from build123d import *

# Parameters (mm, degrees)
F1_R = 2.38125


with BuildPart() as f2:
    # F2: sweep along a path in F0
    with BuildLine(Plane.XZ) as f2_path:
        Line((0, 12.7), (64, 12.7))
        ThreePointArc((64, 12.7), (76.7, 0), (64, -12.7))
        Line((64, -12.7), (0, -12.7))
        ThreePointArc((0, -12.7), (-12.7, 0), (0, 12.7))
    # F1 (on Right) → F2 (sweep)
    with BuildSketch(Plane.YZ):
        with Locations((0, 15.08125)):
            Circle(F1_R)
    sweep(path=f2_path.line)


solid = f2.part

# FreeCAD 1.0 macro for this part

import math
import FreeCAD as App
import Part
import Sketcher
Q = App.Units.Quantity

doc = App.newDocument("Part")
body = doc.addObject("PartDesign::Body", "Body")

sketch1 = body.newObject("Sketcher::SketchObject", "Sketch")
sketch1.AttachmentSupport = (doc.getObject("YZ_Plane"), [""])
sketch1.MapMode = "FlatFace"
sketch1.addGeometry(Part.Circle(App.Vector(0, 15.1, 0), App.Vector(0, 0, 1), 2.4), False)
sketch1.addConstraint(Sketcher.Constraint("PointOnObject", 0, 3, -2))
sketch1.addConstraint(Sketcher.Constraint("Diameter", 0, Q("0.1875 in")))
sketch1.addConstraint(Sketcher.Constraint("DistanceY", -1, 1, 0, 3, Q("0.59375 in")))

sketch2 = body.newObject("Sketcher::SketchObject", "Sketch001")
sketch2.AttachmentSupport = (doc.getObject("XZ_Plane"), [""])
sketch2.MapMode = "FlatFace"
sketch2.addGeometry(Part.LineSegment(App.Vector(0, 13, 0), App.Vector(64, 13, 0)), False)
sketch2.addGeometry(Part.ArcOfCircle(Part.Circle(App.Vector(64, 0, 0), App.Vector(0, 0, 1), 13), math.radians(-90), math.radians(90)), False)
sketch2.addGeometry(Part.LineSegment(App.Vector(64, -13, 0), App.Vector(0, -13, 0)), False)
sketch2.addGeometry(Part.ArcOfCircle(Part.Circle(App.Vector(0, 0, 0), App.Vector(0, 0, 1), 13), math.radians(90), math.radians(270)), False)
sketch2.addConstraint(Sketcher.Constraint("Tangent", 0, 2, 1, 2))
sketch2.addConstraint(Sketcher.Constraint("Tangent", 1, 1, 2, 1))
sketch2.addConstraint(Sketcher.Constraint("Tangent", 2, 2, 3, 2))
sketch2.addConstraint(Sketcher.Constraint("Tangent", 3, 1, 0, 1))
sketch2.addConstraint(Sketcher.Constraint("Horizontal", 0))
sketch2.addConstraint(Sketcher.Constraint("Horizontal", 2))
sketch2.addConstraint(Sketcher.Constraint("Coincident", 3, 3, -1, 1))
sketch2.addConstraint(Sketcher.Constraint("Radius", 1, Q("0.5 in")))
sketch2.addConstraint(Sketcher.Constraint("DistanceX", 0, 1, 0, 2, Q("64 mm")))
doc.recompute()

additivepipe = body.newObject("PartDesign::AdditivePipe", "AdditivePipe")
additivepipe.Profile = sketch1
additivepipe.Spine = (sketch2, ["Edge1", "Edge2", "Edge3", "Edge4"])

doc.recompute()
